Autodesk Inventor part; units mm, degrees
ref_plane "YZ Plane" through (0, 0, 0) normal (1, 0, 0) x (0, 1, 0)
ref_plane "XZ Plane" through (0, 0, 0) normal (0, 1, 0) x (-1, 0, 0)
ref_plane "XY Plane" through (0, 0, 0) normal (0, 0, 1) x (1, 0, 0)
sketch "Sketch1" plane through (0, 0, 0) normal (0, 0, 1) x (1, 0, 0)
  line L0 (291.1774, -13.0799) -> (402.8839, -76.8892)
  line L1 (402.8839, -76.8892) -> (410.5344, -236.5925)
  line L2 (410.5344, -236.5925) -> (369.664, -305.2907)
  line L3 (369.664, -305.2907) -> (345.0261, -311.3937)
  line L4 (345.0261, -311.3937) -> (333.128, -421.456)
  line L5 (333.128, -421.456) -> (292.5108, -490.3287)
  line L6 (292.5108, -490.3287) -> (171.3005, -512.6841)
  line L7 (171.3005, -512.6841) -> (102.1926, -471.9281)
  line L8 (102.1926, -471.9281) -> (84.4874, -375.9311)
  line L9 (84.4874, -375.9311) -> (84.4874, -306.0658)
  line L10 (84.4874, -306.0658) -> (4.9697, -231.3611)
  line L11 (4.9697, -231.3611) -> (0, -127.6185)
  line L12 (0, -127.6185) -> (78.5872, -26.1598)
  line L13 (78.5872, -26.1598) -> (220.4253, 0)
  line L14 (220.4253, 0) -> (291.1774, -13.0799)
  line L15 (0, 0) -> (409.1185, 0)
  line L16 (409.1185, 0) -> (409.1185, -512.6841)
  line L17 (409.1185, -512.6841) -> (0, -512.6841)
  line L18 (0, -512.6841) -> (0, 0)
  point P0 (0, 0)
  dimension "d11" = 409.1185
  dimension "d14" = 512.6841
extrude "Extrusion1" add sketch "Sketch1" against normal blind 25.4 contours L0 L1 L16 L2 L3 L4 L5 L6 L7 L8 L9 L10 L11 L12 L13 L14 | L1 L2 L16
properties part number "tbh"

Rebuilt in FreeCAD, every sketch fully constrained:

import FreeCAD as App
import Part
import Sketcher

V = App.Vector
Q = App.Units.Quantity

doc = App.newDocument("Part")
params = doc.addObject("Spreadsheet::Sheet", "Params")
for row, (alias, value) in enumerate([
    ("pad1_length", "1 in"),
], start=1):
    params.set(f"A{row}", alias)
    params.set(f"B{row}", "=" + value)
    params.setAlias(f"B{row}", alias)

body = doc.addObject("PartDesign::Body", "Body")

sketch1 = doc.addObject("Sketcher::SketchObject", "Sketch")
body.addObject(sketch1)
sketch1.AttachmentSupport = (doc.XY_Plane, [""])
sketch1.MapMode = "FlatFace"
sketch1.addGeometry(Part.LineSegment(V(402.8839, -76.8892, 0), V(291.1774, -13.0799, 0)), False)
sketch1.addGeometry(Part.LineSegment(V(291.1774, -13.0799, 0), V(220.4253, 0, 0)), False)
sketch1.addGeometry(Part.LineSegment(V(220.4253, 0, 0), V(78.5872, -26.1598, 0)), False)
sketch1.addGeometry(Part.LineSegment(V(78.5872, -26.1598, 0), V(0, -127.6185, 0)), False)
sketch1.addGeometry(Part.LineSegment(V(0, -127.6185, 0), V(4.9697, -231.3611, 0)), False)
sketch1.addGeometry(Part.LineSegment(V(4.9697, -231.3611, 0), V(84.4874, -306.0658, 0)), False)
sketch1.addGeometry(Part.LineSegment(V(84.4874, -306.0658, 0), V(84.4874, -375.9311, 0)), False)
sketch1.addGeometry(Part.LineSegment(V(84.4874, -375.9311, 0), V(102.1926, -471.9281, 0)), False)
sketch1.addGeometry(Part.LineSegment(V(102.1926, -471.9281, 0), V(171.3005, -512.6841, 0)), False)
sketch1.addGeometry(Part.LineSegment(V(171.3005, -512.6841, 0), V(292.5108, -490.3287, 0)), False)
sketch1.addGeometry(Part.LineSegment(V(292.5108, -490.3287, 0), V(333.128, -421.456, 0)), False)
sketch1.addGeometry(Part.LineSegment(V(333.128, -421.456, 0), V(345.0261, -311.3937, 0)), False)
sketch1.addGeometry(Part.LineSegment(V(345.0261, -311.3937, 0), V(369.664, -305.2907, 0)), False)
sketch1.addGeometry(Part.LineSegment(V(369.664, -305.2907, 0), V(410.5344, -236.5925, 0)), False)
sketch1.addGeometry(Part.LineSegment(V(410.5344, -236.5925, 0), V(402.8839, -76.8892, 0)), False)
sketch1.addConstraint(Sketcher.Constraint("Coincident", 0, 2, 1, 1))
sketch1.addConstraint(Sketcher.Constraint("Coincident", 1, 2, 2, 1))
sketch1.addConstraint(Sketcher.Constraint("Coincident", 2, 2, 3, 1))
sketch1.addConstraint(Sketcher.Constraint("Coincident", 3, 2, 4, 1))
sketch1.addConstraint(Sketcher.Constraint("Coincident", 4, 2, 5, 1))
sketch1.addConstraint(Sketcher.Constraint("Coincident", 5, 2, 6, 1))
sketch1.addConstraint(Sketcher.Constraint("Coincident", 6, 2, 7, 1))
sketch1.addConstraint(Sketcher.Constraint("Coincident", 7, 2, 8, 1))
sketch1.addConstraint(Sketcher.Constraint("Coincident", 8, 2, 9, 1))
sketch1.addConstraint(Sketcher.Constraint("Coincident", 9, 2, 10, 1))
sketch1.addConstraint(Sketcher.Constraint("Coincident", 10, 2, 11, 1))
sketch1.addConstraint(Sketcher.Constraint("Coincident", 11, 2, 12, 1))
sketch1.addConstraint(Sketcher.Constraint("Coincident", 12, 2, 13, 1))
sketch1.addConstraint(Sketcher.Constraint("Coincident", 13, 2, 14, 1))
sketch1.addConstraint(Sketcher.Constraint("Coincident", 14, 2, 0, 1))
sketch1.addConstraint(Sketcher.Constraint("Vertical", 6))
sketch1.addConstraint(Sketcher.Constraint("PointOnObject", 1, 2, -1))
sketch1.addConstraint(Sketcher.Constraint("PointOnObject", 3, 2, -2))
sketch1.addConstraint(Sketcher.Constraint("DistanceY", 8, 2, -1, 1, Q("20.1844094 in")))
sketch1.addConstraint(Sketcher.Constraint("DistanceY", 7, 2, 5, 2, Q("6.53 in")))
sketch1.addConstraint(Sketcher.Constraint("DistanceX", 11, 2, 12, 2, Q("0.97 in")))
sketch1.addConstraint(Sketcher.Constraint("DistanceY", 6, 2, 6, 1, Q("2.7506 in")))
sketch1.addConstraint(Sketcher.Constraint("DistanceY", 4, 2, 0, 2, Q("8.593748 in")))
sketch1.addConstraint(Sketcher.Constraint("DistanceX", 6, 2, 10, 2, Q("9.789 in")))
sketch1.addConstraint(Sketcher.Constraint("Distance", 11, Q("4.3584 in")))
sketch1.addConstraint(Sketcher.Constraint("Distance", 13, Q("3.1471 in")))
sketch1.addConstraint(Sketcher.Constraint("DistanceY", 4, 2, -1, 1, Q("9.1087 in")))
sketch1.addConstraint(Sketcher.Constraint("DistanceX", -1, 1, 11, 2, Q("13.5837 in")))
sketch1.addConstraint(Sketcher.Constraint("DistanceY", 11, 2, -1, 1, Q("12.2596 in")))
sketch1.addConstraint(Sketcher.Constraint("DistanceX", 2, 2, 0, 2, Q("8.3697 in")))
sketch1.addConstraint(Sketcher.Constraint("DistanceY", 3, 2, 0, 2, Q("4.5094 in")))
sketch1.addConstraint(Sketcher.Constraint("DistanceY", 4, 2, 2, 2, Q("8.0788 in")))
sketch1.addConstraint(Sketcher.Constraint("DistanceX", 4, 2, 1, 2, Q("8.4825 in")))
sketch1.addConstraint(Sketcher.Constraint("DistanceX", 2, 2, 5, 2, Q("0.2323 in")))
sketch1.addConstraint(Sketcher.Constraint("DistanceY", 7, 2, 3, 2, Q("13.5555 in")))
sketch1.addConstraint(Sketcher.Constraint("DistanceX", 6, 2, 9, 2, Q("8.1899 in")))
sketch1.addConstraint(Sketcher.Constraint("DistanceY", 7, 2, 10, 2, Q("1.9871 in")))
sketch1.addConstraint(Sketcher.Constraint("DistanceX", 8, 2, 11, 2, Q("6.8396 in")))
sketch1.addConstraint(Sketcher.Constraint("DistanceY", 8, 2, 12, 2, Q("8.1651 in")))
sketch1.addConstraint(Sketcher.Constraint("DistanceX", 10, 2, 13, 2, Q("3.0475 in")))
sketch1.addConstraint(Sketcher.Constraint("DistanceX", 0, 2, 14, 2, Q("4.3979 in")))
sketch1.addConstraint(Sketcher.Constraint("DistanceX", 1, 2, 14, 2, Q("7.1834 in")))
sketch1.addConstraint(Sketcher.Constraint("Distance", 0, Q("128.6467 mm")))
sketch1.addConstraint(Sketcher.Constraint("Distance", 7, Q("97.616 mm")))
sketch1.addConstraint(Sketcher.Constraint("Distance", 9, Q("123.2546 mm")))
pad1 = doc.addObject("PartDesign::Pad", "Pad")
body.addObject(pad1)
pad1.Profile = sketch1
pad1.setExpression("Length", "Params.pad1_length")
pad1.Reversed = True

doc.recompute()
